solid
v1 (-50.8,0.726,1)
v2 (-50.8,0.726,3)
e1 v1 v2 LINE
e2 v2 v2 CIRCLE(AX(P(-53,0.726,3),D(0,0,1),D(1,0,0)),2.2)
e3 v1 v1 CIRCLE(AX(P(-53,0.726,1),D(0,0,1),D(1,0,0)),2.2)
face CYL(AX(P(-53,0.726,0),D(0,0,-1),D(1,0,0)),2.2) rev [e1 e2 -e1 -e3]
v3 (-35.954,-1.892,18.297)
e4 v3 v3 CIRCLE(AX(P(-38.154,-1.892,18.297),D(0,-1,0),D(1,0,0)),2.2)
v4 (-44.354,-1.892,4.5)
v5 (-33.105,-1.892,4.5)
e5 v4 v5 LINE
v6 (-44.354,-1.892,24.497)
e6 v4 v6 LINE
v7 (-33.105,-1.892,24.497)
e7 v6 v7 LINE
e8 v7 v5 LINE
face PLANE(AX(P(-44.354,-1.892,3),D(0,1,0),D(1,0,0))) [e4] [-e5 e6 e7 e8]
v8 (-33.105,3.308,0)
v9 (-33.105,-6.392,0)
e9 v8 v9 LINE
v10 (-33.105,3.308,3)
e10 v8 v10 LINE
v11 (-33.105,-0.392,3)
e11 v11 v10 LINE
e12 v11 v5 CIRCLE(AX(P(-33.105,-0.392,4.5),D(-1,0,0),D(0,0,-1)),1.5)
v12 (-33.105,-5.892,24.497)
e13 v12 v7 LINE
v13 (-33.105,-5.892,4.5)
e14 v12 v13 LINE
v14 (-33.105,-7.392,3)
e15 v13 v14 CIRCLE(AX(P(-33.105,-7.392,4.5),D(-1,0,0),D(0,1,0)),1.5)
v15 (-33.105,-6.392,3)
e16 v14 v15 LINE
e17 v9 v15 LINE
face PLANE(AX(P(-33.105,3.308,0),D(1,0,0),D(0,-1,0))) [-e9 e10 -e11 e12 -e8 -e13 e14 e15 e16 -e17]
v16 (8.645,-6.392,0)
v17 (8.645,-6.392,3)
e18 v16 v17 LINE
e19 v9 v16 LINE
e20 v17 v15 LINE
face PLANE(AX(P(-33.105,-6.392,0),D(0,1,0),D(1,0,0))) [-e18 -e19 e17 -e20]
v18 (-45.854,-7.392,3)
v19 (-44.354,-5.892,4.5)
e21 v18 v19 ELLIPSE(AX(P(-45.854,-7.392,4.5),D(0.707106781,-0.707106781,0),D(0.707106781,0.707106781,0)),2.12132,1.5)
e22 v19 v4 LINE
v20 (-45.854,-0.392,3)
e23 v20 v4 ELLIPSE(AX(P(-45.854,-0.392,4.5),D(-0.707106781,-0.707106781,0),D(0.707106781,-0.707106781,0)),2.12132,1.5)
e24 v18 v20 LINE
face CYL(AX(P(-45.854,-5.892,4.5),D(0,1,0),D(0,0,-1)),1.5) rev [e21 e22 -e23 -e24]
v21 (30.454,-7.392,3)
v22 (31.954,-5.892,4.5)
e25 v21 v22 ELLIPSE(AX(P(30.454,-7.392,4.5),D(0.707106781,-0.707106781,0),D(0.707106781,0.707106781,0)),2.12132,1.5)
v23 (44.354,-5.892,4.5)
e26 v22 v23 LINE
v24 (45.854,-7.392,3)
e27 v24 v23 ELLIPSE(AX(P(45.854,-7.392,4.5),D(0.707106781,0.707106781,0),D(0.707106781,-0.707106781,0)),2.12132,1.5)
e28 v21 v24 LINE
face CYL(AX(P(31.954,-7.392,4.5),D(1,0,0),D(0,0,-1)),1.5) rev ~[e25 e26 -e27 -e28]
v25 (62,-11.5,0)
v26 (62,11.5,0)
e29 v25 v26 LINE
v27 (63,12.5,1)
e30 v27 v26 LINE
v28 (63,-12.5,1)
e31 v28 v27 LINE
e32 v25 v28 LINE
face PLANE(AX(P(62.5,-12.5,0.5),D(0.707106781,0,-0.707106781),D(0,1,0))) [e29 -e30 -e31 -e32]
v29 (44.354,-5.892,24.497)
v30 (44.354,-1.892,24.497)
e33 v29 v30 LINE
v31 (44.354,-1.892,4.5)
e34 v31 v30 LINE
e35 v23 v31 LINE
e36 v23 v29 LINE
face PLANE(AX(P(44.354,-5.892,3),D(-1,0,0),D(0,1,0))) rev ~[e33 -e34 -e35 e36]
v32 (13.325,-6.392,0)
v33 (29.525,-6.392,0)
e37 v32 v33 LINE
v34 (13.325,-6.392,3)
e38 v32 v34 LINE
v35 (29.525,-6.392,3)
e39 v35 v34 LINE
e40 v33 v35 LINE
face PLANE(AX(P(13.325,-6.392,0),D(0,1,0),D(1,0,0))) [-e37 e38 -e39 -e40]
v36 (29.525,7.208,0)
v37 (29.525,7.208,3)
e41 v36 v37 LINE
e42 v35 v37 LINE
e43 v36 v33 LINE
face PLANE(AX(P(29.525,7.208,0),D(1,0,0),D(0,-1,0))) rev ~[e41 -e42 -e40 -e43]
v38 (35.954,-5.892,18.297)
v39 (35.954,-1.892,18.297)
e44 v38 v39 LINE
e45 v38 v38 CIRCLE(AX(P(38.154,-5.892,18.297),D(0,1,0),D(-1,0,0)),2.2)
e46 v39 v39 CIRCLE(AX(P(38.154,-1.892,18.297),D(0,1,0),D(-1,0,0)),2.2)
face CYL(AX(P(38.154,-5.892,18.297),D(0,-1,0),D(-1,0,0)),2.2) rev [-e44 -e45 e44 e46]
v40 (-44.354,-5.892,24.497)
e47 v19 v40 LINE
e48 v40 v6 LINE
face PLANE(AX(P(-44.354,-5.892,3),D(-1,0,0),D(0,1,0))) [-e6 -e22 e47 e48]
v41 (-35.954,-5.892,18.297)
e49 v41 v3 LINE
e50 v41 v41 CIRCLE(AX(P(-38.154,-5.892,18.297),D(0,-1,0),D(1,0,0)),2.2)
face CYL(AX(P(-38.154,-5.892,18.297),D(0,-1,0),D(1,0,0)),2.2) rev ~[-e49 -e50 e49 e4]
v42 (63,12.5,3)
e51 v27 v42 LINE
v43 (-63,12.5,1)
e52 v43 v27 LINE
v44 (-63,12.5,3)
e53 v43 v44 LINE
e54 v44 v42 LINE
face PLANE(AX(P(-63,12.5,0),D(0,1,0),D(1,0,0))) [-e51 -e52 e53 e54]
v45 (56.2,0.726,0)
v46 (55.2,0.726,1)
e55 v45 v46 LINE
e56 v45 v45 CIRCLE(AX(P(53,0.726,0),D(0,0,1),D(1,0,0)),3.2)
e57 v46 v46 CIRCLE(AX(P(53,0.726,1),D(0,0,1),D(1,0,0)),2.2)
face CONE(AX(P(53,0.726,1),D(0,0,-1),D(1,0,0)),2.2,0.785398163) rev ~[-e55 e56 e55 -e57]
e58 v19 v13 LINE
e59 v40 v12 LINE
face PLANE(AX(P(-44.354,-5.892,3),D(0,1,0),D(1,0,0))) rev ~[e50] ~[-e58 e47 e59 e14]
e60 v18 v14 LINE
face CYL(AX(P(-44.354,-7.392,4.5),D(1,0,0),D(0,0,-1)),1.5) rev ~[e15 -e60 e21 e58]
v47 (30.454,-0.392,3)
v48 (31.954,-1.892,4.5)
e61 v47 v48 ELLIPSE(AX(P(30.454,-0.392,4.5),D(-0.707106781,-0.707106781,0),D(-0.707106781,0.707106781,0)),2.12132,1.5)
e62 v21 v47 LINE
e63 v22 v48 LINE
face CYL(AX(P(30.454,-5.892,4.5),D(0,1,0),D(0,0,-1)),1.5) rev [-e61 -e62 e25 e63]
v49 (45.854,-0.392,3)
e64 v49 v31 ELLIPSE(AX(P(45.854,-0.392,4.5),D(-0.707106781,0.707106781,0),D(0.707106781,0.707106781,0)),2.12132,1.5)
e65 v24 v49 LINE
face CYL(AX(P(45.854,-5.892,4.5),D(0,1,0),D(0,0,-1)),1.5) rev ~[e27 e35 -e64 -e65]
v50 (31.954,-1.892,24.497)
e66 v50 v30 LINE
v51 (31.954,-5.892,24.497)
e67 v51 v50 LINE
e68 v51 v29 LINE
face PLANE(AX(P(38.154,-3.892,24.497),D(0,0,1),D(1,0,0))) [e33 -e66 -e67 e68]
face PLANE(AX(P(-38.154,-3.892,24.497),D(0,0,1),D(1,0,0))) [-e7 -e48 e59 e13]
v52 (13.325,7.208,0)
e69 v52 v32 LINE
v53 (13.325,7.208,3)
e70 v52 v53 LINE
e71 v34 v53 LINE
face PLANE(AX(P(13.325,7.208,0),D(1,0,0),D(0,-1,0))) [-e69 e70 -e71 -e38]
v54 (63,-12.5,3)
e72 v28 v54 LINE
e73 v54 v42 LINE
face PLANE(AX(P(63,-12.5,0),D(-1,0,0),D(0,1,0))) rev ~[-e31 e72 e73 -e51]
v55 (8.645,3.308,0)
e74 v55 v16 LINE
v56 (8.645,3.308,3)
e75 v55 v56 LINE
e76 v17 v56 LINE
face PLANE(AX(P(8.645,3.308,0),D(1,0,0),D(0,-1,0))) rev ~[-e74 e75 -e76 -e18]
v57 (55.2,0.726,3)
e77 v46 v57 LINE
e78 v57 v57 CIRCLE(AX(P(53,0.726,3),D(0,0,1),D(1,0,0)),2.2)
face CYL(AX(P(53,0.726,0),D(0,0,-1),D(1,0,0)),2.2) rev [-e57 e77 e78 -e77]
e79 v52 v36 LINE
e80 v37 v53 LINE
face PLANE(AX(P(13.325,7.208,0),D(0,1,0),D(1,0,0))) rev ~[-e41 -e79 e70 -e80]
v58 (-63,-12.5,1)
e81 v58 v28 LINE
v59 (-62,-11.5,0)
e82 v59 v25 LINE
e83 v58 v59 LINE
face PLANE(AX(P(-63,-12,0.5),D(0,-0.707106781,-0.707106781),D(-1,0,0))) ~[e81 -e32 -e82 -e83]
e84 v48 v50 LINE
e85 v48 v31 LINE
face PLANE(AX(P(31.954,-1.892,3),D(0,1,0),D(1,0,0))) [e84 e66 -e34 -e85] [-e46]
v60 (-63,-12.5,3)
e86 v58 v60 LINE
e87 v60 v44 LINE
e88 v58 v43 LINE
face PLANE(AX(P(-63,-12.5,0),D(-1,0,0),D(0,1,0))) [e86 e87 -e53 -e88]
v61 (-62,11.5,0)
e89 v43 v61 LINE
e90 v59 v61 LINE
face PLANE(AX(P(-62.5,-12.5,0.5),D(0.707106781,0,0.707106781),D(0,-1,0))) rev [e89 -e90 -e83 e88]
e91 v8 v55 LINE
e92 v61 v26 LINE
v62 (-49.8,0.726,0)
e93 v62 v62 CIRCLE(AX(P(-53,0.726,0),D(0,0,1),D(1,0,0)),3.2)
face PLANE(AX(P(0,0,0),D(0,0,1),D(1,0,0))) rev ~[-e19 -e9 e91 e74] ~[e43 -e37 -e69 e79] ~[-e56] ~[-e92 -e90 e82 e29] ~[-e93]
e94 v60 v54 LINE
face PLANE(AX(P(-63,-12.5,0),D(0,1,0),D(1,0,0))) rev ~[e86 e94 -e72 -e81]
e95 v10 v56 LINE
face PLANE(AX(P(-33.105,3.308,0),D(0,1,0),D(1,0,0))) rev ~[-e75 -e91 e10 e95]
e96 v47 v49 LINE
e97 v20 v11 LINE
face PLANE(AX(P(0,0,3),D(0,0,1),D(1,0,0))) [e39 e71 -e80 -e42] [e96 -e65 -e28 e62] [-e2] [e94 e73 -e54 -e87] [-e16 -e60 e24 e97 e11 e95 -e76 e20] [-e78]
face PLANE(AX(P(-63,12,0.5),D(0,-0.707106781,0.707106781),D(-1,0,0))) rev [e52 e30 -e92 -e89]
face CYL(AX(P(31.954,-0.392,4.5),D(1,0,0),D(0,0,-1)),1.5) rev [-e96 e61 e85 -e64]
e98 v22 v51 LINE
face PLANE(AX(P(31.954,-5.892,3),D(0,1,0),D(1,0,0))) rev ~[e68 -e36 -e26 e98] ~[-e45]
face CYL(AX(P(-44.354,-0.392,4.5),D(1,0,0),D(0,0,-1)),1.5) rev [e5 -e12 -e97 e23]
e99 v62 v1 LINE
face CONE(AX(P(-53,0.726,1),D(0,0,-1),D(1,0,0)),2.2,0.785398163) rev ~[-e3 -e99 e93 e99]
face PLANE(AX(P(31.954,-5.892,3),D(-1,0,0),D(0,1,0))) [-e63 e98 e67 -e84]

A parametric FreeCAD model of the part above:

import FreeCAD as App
import Part
import Sketcher

V = App.Vector
Q = App.Units.Quantity


def edges_at(feature, points):
    """Names of the edges that pass closest to the given points."""
    edges = feature.Shape.Edges
    near = lambda p: min(range(len(edges)), key=lambda i: edges[i].distToShape(Part.Vertex(*p))[0])
    return sorted({f"Edge{near(p) + 1}" for p in points})


def add_polygon(sketch, points):
    """Adds a closed chain of lines whose ends are joined by coincident constraints."""
    first, n = sketch.GeometryCount, len(points)
    for a, b in zip(points, points[1:] + points[:1]):
        sketch.addGeometry(Part.LineSegment(App.Vector(*a, 0), App.Vector(*b, 0)), False)
    for i in range(n):
        sketch.addConstraint(Sketcher.Constraint("Coincident", first + i, 2, first + (i + 1) % n, 1))

doc = App.newDocument("Part")
body = doc.addObject("PartDesign::Body", "Body")

# Sketch on XY plane
sketch1 = body.newObject("Sketcher::SketchObject", "Sketch")
sketch1.AttachmentSupport = (doc.getObject("XY_Plane"), [""])
sketch1.MapMode = "FlatFace"
add_polygon(sketch1, [(-63, 12.5), (-63, -12.5), (63, -12.5), (63, 12.5)])  # lines 0-3
sketch1.addGeometry(Part.Circle(V(-53, 0.7, 0), V(0, 0, 1), 2.2), False)  # 4
sketch1.addGeometry(Part.Circle(V(53, 0.7, 0), V(0, 0, 1), 2.2), False)  # 5
sketch1.addConstraint([
    Sketcher.Constraint("Vertical", 0),
    Sketcher.Constraint("Horizontal", 1),
    Sketcher.Constraint("Vertical", 2),
    Sketcher.Constraint("Horizontal", 3),
    Sketcher.Constraint("Equal", 4, 5),
    Sketcher.Constraint("Symmetric", 0, 2, 2, 2, -1, 1),
    Sketcher.Constraint("Symmetric", 4, 3, 5, 3, -2),
    Sketcher.Constraint("Diameter", 4, Q("4.4 mm")),
    Sketcher.Constraint("DistanceX", 1, 1, 1, 2, Q("126 mm")),
    Sketcher.Constraint("DistanceY", 0, 2, 0, 1, Q("25 mm")),
    Sketcher.Constraint("DistanceX", 4, 3, -1, 1, Q("53 mm")),
    Sketcher.Constraint("DistanceY", -1, 1, 4, 3, Q("0.726 mm")),
])
pad1 = body.newObject("PartDesign::Pad", "Pad")
pad1.Profile = sketch1
pad1.Length = 3

# Sketch on XY plane
sketch2 = body.newObject("Sketcher::SketchObject", "Sketch001")
sketch2.AttachmentSupport = (doc.getObject("XY_Plane"), [""])
sketch2.MapMode = "FlatFace"
sketch2.AttachmentOffset = App.Placement(V(0, 0, 3), App.Rotation())
add_polygon(sketch2, [(-44.4, -1.9), (-44.4, -5.9), (-32, -5.9), (-32, -1.9)])  # lines 0-3
add_polygon(sketch2, [(32, -1.9), (32, -5.9), (44.4, -5.9), (44.4, -1.9)])  # lines 4-7
sketch2.addConstraint([
    Sketcher.Constraint("Vertical", 0),
    Sketcher.Constraint("Horizontal", 1),
    Sketcher.Constraint("Vertical", 2),
    Sketcher.Constraint("Horizontal", 3),
    Sketcher.Constraint("Vertical", 4),
    Sketcher.Constraint("Horizontal", 5),
    Sketcher.Constraint("Vertical", 6),
    Sketcher.Constraint("Horizontal", 7),
    Sketcher.Constraint("Symmetric", 1, 2, 4, 2, -2),
    Sketcher.Constraint("Symmetric", 3, 2, 6, 2, -2),
    Sketcher.Constraint("DistanceY", 0, 2, 0, 1, Q("4 mm")),
    Sketcher.Constraint("DistanceX", 1, 1, 1, 2, Q("12.4 mm")),
    Sketcher.Constraint("DistanceX", 0, 2, -1, 1, Q("44.354 mm")),
    Sketcher.Constraint("DistanceY", 0, 2, -1, 1, Q("5.892 mm")),
])
pad2 = body.newObject("PartDesign::Pad", "Pad001")
pad2.Profile = sketch2
pad2.Length = 21.497

# Sketch on XZ plane
sketch3 = body.newObject("Sketcher::SketchObject", "Sketch002")
sketch3.AttachmentSupport = (doc.getObject("XZ_Plane"), [""])
sketch3.MapMode = "FlatFace"
sketch3.AttachmentOffset = App.Placement(V(0, 0, 5.892), App.Rotation())
sketch3.addGeometry(Part.Circle(V(-38.2, 18.3, 0), V(0, 0, 1), 2.2), False)
sketch3.addConstraint([
    Sketcher.Constraint("Diameter", 0, Q("4.4 mm")),
    Sketcher.Constraint("DistanceX", 0, 3, -1, 1, Q("38.154 mm")),
    Sketcher.Constraint("DistanceY", -1, 1, 0, 3, Q("18.297 mm")),
])
pocket1 = body.newObject("PartDesign::Pocket", "Pocket")
pocket1.Profile = sketch3
pocket1.Length = 4
doc.recompute()

mirrored = body.newObject("PartDesign::Mirrored", "Mirrored")
mirrored.Originals = [pocket1]
mirrored.MirrorPlane = (doc.getObject("YZ_Plane"), [""])
body.Tip = mirrored
doc.recompute()

chamfer = body.newObject("PartDesign::Chamfer", "Chamfer")
chamfer.Base = (mirrored, edges_at(mirrored, [
    (0, 12.5, 0),
    (63, 0, 0),
    (0, -12.5, 0),
    (-63, 0, 0),
    (50.8, 0.726, 0),
    (-55.2, 0.726, 0),
]))
chamfer.Size = 1
doc.recompute()

fillet = body.newObject("PartDesign::Fillet", "Fillet")
fillet.Base = (chamfer, edges_at(chamfer, [
    (38.154, -5.892, 3),
    (31.954, -3.892, 3),
    (38.154, -1.892, 3),
    (44.354, -3.892, 3),
    (-38.154, -5.892, 3),
    (-31.954, -3.892, 3),
    (-38.154, -1.892, 3),
    (-44.354, -3.892, 3),
]))
fillet.Radius = 1.5

# Sketch on XY plane
sketch4 = body.newObject("Sketcher::SketchObject", "Sketch003")
sketch4.AttachmentSupport = (doc.getObject("XY_Plane"), [""])
sketch4.MapMode = "FlatFace"
add_polygon(sketch4, [(-33, -6), (-33, 3), (9, 3), (9, -6)])  # lines 0-3
add_polygon(sketch4, [(13, -6), (13, 7), (30, 7), (30, -6)])  # lines 4-7
sketch4.addConstraint([
    Sketcher.Constraint("Vertical", 0),
    Sketcher.Constraint("Horizontal", 1),
    Sketcher.Constraint("Vertical", 2),
    Sketcher.Constraint("Horizontal", 3),
    Sketcher.Constraint("Vertical", 4),
    Sketcher.Constraint("Horizontal", 5),
    Sketcher.Constraint("Vertical", 6),
    Sketcher.Constraint("Horizontal", 7),
    Sketcher.Constraint("Horizontal", 3, 2, 6, 2),
    Sketcher.Constraint("DistanceX", 5, 1, 5, 2, Q("16.2 mm")),
    Sketcher.Constraint("DistanceY", 0, 1, 0, 2, Q("9.7 mm")),
    Sketcher.Constraint("DistanceY", 4, 1, 4, 2, Q("13.6 mm")),
    Sketcher.Constraint("DistanceX", 1, 1, 1, 2, Q("41.75 mm")),
    Sketcher.Constraint("DistanceX", 1, 2, 4, 2, Q("4.68 mm")),
    Sketcher.Constraint("DistanceX", 0, 2, -1, 1, Q("33.105 mm")),
    Sketcher.Constraint("DistanceY", -1, 1, 0, 2, Q("3.308 mm")),
])
pocket2 = body.newObject("PartDesign::Pocket", "Pocket001")
pocket2.Profile = sketch4
pocket2.Type = "ThroughAll"
pocket2.Reversed = True

# Sketch on XZ plane
sketch5 = body.newObject("Sketcher::SketchObject", "Sketch004")
sketch5.AttachmentSupport = (doc.getObject("XZ_Plane"), [""])
sketch5.MapMode = "FlatFace"
sketch5.AttachmentOffset = App.Placement(V(0, 0, 12.5), App.Rotation())
add_polygon(sketch5, [(-33.1, 3.38), (-33.1, 3), (-30.45, 3), (-30.45, 3.38)])  # lines 0-3
sketch5.addConstraint([
    Sketcher.Constraint("Vertical", 0),
    Sketcher.Constraint("Horizontal", 1),
    Sketcher.Constraint("Vertical", 2),
    Sketcher.Constraint("Horizontal", 3),
    Sketcher.Constraint("DistanceY", -1, 1, 0, 2, Q("3 mm")),
    Sketcher.Constraint("DistanceX", 1, 1, 1, 2, Q("2.651 mm")),
    Sketcher.Constraint("DistanceX", 0, 2, -1, 1, Q("33.105 mm")),
    Sketcher.Constraint("DistanceY", 0, 2, 0, 1, Q("0.381966 mm")),
])
pocket3 = body.newObject("PartDesign::Pocket", "Pocket002")
pocket3.Profile = sketch5
pocket3.Length = 15.808

doc.recompute()
